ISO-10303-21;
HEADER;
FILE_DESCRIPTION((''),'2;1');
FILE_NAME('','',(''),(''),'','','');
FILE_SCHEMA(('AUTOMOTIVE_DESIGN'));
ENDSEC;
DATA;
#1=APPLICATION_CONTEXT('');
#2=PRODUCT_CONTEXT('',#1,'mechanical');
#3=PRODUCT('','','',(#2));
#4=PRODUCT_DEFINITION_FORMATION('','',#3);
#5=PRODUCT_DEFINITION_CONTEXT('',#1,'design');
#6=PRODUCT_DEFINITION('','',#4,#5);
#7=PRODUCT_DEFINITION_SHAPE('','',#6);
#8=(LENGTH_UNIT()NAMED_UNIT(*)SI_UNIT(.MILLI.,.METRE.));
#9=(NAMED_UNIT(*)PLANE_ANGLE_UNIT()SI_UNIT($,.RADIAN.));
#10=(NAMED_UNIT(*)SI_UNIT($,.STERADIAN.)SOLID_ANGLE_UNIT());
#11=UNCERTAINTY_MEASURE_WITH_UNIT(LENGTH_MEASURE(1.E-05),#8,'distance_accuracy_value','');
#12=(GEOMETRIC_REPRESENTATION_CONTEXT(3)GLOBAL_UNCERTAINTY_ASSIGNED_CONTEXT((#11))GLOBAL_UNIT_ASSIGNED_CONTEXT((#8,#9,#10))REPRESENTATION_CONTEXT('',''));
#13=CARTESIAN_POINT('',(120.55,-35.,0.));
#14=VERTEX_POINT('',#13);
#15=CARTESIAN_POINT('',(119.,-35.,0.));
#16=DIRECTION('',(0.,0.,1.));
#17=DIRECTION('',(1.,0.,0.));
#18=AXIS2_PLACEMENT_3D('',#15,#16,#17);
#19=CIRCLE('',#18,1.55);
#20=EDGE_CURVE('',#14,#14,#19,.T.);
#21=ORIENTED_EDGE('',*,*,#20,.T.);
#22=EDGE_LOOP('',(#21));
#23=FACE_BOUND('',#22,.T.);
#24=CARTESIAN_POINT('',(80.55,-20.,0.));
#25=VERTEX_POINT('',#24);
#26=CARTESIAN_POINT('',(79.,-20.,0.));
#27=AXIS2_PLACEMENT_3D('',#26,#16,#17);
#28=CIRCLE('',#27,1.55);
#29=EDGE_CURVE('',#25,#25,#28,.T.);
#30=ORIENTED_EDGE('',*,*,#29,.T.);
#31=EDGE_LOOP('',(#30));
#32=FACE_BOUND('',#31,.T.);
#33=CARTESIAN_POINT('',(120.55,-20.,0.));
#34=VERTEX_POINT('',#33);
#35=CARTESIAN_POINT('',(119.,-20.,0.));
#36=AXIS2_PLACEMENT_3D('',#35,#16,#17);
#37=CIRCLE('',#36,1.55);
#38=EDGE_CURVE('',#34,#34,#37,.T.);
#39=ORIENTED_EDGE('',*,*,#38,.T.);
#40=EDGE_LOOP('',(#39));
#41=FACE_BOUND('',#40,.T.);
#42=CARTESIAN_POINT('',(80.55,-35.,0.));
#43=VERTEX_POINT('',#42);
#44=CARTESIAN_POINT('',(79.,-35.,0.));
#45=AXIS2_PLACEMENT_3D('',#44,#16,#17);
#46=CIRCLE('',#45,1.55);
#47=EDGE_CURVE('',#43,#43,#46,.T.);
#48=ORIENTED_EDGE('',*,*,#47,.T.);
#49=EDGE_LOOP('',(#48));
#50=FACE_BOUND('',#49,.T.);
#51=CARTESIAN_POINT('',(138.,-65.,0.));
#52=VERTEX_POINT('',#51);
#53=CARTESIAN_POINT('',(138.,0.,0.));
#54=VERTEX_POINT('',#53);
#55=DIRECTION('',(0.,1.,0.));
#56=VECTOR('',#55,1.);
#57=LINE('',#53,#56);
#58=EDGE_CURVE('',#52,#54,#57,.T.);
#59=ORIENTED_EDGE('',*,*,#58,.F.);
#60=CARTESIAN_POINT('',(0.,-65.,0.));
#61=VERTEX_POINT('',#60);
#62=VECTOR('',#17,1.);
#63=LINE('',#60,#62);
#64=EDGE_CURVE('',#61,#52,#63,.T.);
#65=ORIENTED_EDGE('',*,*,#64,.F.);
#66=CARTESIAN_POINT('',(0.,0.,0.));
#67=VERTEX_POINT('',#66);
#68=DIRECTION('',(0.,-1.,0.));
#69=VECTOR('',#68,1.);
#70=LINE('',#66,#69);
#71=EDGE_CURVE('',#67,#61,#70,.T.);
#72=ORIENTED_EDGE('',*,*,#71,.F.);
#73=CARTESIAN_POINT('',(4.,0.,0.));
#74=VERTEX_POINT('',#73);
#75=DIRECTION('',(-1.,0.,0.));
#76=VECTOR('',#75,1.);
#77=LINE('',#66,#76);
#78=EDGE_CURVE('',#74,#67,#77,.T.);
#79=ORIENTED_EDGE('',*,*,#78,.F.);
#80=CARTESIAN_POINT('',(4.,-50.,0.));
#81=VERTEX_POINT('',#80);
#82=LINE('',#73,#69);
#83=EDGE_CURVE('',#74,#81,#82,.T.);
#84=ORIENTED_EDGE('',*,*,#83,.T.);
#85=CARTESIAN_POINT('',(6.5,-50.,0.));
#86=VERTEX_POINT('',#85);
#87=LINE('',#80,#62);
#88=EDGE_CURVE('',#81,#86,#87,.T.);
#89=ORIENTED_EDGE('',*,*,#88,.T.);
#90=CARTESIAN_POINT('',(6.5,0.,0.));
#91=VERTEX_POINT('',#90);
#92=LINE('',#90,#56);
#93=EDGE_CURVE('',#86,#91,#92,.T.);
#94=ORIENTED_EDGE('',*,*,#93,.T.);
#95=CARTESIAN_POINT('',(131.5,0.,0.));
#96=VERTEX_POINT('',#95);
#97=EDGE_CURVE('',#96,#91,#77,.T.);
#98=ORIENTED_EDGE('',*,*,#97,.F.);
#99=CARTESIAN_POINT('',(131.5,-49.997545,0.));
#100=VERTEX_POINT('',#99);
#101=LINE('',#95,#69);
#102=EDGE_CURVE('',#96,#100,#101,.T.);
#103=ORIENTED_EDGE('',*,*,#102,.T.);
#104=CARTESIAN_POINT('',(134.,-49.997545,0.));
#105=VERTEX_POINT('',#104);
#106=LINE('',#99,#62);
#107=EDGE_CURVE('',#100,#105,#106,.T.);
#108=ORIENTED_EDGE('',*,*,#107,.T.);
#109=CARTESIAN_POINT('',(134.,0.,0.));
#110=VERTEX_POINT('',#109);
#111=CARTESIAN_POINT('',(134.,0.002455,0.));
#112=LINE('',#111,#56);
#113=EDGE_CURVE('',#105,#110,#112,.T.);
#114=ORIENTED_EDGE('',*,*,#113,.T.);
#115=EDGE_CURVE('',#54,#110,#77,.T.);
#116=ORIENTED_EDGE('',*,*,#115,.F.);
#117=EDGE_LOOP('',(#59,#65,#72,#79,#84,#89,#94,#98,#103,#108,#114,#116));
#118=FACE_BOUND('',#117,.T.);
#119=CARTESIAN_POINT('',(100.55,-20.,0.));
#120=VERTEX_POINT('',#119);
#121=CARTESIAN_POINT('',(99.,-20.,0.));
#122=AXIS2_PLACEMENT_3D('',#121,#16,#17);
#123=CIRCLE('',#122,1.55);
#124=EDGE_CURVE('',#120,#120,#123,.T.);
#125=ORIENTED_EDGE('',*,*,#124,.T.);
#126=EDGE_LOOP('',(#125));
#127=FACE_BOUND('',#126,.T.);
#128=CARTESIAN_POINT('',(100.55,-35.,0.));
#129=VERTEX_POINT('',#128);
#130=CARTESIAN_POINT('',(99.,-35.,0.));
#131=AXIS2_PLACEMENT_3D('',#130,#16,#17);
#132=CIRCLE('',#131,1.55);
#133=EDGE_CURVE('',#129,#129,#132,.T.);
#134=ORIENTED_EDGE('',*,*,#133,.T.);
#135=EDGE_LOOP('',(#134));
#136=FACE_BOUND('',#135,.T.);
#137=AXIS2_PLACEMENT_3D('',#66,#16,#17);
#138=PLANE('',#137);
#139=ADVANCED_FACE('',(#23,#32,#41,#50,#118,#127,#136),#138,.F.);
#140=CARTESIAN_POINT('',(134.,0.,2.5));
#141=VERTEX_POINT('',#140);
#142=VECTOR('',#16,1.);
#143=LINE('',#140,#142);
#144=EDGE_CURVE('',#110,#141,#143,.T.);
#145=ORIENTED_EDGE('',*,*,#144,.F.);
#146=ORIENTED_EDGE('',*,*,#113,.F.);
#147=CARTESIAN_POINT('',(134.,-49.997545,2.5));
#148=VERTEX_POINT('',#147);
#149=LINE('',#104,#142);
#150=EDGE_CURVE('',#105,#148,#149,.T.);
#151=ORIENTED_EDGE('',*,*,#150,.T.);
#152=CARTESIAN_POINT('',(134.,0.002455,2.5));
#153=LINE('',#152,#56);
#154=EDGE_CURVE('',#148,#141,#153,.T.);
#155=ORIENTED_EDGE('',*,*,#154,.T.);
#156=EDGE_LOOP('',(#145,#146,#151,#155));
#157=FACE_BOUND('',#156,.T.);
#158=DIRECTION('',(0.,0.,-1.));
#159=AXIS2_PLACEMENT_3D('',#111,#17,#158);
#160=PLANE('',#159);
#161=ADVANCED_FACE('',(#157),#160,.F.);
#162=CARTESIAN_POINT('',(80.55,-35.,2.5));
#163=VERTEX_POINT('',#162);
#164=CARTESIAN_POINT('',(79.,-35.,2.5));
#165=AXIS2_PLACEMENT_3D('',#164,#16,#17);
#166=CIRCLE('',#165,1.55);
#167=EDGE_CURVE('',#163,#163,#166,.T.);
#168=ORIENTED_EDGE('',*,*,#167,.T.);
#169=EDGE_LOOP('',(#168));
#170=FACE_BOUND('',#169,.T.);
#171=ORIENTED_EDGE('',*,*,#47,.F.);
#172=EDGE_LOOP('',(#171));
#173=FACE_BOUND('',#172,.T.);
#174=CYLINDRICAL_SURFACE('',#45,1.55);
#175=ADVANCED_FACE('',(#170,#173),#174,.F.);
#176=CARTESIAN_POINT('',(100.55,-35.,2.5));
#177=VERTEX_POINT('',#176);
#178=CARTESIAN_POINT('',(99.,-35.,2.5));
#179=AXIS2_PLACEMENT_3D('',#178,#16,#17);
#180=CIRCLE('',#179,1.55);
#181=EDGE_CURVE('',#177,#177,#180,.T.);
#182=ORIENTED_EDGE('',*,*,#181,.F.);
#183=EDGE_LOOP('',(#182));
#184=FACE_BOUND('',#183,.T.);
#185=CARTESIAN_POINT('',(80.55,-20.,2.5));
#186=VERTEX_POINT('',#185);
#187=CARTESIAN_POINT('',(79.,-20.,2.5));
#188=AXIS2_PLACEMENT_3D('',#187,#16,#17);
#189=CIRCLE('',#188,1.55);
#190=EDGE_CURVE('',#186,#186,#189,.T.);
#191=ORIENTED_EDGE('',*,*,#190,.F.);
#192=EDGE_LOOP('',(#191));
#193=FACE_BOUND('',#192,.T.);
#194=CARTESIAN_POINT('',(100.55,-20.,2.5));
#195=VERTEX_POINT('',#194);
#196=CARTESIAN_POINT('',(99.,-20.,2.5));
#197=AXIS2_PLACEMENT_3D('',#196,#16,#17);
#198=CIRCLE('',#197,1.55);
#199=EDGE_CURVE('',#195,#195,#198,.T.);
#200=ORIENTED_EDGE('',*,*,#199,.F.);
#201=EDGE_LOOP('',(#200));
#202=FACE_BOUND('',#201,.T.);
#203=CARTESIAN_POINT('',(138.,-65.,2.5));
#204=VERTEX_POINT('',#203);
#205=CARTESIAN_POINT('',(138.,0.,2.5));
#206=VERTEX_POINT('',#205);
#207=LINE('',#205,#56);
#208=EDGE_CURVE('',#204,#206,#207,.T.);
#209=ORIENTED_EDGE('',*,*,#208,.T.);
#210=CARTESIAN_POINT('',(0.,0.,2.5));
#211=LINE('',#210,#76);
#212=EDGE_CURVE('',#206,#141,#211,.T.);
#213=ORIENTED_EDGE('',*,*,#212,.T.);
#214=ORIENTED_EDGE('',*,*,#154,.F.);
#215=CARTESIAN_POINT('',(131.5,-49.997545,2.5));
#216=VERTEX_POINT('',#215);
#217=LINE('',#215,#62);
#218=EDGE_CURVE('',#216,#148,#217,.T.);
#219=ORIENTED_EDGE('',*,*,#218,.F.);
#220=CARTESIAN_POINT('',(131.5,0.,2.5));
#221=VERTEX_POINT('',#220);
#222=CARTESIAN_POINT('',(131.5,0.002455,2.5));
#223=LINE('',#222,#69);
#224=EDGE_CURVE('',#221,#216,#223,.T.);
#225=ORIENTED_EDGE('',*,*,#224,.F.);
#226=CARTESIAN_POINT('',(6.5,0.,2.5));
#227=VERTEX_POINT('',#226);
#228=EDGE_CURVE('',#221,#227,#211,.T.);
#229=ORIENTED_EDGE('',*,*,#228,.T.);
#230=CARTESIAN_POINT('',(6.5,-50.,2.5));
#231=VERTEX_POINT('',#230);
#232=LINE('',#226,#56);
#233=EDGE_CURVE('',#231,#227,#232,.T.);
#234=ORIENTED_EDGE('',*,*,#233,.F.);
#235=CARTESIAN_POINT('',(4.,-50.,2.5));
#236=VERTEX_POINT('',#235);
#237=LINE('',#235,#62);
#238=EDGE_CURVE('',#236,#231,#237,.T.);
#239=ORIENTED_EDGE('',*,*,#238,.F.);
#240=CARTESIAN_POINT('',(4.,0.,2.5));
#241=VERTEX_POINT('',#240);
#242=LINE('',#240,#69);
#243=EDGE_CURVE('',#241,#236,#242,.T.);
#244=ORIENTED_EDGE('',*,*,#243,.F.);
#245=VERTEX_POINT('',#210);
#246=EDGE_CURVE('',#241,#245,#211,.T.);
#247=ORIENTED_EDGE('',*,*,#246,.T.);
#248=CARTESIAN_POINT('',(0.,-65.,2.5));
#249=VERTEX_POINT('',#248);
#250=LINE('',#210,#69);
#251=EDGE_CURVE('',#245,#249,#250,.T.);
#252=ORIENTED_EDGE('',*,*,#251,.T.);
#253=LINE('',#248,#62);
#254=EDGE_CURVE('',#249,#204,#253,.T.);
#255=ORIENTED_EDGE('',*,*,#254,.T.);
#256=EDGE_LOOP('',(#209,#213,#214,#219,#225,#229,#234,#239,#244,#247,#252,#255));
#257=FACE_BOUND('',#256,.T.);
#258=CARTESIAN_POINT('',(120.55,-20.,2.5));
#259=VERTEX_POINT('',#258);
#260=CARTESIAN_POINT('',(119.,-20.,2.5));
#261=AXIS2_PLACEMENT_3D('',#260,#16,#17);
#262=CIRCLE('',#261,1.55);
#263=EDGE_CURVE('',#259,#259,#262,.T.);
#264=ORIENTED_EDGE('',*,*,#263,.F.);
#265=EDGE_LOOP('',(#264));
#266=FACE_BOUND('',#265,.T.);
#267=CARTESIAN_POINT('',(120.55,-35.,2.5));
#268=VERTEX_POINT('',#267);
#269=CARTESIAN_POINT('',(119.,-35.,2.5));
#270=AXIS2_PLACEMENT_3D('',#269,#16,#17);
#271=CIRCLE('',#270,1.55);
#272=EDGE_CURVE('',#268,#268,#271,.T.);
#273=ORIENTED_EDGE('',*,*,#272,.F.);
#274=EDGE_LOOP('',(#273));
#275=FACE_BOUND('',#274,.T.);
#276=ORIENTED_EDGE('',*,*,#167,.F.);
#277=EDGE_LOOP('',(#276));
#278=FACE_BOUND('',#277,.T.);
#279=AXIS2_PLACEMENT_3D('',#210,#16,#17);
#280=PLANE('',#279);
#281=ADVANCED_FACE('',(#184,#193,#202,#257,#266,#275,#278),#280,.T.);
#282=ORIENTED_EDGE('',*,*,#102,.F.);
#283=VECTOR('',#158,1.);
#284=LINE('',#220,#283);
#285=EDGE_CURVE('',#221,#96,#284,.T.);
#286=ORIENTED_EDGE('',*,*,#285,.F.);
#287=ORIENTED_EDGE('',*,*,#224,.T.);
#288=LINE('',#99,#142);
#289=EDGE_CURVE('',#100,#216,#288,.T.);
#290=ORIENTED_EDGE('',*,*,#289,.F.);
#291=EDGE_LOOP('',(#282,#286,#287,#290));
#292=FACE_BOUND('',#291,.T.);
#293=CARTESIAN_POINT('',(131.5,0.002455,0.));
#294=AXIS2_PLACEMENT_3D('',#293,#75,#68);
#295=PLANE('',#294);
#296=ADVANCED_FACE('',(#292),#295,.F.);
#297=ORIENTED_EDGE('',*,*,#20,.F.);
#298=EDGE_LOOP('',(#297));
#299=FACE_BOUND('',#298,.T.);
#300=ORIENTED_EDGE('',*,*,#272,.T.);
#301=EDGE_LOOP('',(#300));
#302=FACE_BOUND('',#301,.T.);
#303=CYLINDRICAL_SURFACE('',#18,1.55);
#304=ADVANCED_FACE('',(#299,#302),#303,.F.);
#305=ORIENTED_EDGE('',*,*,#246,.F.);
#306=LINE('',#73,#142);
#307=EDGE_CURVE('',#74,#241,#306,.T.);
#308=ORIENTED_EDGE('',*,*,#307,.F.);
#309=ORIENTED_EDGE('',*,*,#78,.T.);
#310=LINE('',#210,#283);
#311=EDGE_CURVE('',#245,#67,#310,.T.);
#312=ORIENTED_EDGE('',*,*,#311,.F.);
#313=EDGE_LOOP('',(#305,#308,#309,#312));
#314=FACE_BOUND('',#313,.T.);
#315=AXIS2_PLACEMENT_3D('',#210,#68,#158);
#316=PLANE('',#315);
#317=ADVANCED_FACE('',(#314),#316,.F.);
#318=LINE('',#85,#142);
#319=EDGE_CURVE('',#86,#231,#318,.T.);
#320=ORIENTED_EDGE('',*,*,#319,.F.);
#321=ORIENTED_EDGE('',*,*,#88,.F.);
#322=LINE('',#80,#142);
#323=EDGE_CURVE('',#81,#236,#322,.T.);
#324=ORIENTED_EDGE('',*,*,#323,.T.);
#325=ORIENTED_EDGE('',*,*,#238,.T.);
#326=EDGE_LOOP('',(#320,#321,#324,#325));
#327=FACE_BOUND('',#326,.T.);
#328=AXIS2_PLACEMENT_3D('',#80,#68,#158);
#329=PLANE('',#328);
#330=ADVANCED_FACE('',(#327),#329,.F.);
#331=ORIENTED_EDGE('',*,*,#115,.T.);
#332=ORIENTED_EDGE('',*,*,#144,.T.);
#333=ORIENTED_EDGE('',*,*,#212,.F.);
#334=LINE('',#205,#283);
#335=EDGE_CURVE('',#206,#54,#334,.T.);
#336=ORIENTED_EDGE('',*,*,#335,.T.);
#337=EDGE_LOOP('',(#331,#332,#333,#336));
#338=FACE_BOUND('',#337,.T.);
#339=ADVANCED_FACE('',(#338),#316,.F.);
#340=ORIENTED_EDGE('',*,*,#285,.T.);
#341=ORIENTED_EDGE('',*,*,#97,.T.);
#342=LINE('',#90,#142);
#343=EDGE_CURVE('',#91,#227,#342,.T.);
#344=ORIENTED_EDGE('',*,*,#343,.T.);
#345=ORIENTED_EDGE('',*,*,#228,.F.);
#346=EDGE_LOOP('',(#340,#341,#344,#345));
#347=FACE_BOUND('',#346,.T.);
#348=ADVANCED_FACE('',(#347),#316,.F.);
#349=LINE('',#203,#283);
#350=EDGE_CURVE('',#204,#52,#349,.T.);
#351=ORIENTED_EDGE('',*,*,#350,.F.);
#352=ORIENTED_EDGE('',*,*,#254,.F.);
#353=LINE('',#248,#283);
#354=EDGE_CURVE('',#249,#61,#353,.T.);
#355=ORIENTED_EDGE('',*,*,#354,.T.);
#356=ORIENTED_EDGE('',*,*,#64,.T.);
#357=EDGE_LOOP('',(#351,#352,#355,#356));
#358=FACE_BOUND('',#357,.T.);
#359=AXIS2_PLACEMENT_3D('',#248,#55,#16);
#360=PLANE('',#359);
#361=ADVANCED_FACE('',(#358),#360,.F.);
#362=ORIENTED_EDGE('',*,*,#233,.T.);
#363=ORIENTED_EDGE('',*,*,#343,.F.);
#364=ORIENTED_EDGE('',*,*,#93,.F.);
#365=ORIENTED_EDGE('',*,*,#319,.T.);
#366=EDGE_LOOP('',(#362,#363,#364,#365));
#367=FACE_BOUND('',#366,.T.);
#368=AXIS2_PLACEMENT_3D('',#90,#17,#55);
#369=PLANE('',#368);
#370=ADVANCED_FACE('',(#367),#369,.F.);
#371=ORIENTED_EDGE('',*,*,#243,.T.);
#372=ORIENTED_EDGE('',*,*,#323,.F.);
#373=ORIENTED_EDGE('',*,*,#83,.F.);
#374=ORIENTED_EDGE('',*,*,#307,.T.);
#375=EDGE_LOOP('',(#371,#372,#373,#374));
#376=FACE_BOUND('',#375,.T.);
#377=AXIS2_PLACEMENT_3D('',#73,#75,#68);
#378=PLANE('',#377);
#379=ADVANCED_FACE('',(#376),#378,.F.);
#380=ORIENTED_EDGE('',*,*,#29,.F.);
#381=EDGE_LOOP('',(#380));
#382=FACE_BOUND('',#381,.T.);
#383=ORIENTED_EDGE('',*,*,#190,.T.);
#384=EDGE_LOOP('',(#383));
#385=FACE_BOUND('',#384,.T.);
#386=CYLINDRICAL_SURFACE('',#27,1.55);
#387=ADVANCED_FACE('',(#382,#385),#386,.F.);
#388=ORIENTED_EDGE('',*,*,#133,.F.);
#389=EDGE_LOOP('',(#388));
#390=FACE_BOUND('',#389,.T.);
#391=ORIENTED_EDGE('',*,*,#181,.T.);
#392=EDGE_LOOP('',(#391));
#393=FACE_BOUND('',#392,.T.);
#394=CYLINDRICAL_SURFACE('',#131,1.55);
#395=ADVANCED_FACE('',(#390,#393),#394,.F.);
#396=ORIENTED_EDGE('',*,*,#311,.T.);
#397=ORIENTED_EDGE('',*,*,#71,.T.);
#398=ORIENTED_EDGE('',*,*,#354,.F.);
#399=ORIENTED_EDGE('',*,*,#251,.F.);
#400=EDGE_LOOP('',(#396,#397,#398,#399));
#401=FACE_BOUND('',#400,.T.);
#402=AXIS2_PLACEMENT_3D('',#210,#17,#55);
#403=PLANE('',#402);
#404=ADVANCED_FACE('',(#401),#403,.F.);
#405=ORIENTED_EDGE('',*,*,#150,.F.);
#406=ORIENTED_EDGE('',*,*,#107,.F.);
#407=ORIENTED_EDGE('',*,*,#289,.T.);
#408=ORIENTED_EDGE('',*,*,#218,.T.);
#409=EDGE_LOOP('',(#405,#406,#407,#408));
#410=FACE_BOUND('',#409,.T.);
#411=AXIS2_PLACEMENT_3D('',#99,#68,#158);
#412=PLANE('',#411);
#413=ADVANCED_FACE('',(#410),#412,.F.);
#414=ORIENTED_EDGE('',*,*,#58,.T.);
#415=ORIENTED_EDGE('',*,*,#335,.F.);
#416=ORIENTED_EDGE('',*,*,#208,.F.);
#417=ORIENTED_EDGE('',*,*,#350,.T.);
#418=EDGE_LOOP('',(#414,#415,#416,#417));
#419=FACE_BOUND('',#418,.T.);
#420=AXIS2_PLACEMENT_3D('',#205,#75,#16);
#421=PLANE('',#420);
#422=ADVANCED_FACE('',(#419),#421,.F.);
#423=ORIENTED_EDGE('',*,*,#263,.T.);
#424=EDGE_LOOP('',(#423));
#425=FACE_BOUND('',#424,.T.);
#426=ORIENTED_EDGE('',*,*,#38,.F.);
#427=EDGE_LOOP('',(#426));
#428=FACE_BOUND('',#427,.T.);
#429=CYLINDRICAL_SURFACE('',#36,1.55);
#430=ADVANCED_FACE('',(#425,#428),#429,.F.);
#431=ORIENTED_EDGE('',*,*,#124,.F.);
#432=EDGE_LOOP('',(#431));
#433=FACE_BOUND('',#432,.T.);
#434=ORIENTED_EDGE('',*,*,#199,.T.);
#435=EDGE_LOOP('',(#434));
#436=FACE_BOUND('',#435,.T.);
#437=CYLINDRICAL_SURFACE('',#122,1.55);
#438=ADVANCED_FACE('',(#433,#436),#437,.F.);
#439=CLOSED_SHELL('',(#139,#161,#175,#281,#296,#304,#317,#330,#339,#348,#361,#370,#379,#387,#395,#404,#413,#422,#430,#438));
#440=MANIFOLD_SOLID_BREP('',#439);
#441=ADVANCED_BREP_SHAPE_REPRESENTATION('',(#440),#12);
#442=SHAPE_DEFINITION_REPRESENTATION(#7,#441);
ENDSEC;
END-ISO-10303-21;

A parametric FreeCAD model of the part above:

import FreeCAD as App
import Part
import Sketcher
from FreeCAD import Vector
Q = App.Units.Quantity

doc = App.newDocument("Part")
params = doc.addObject("Spreadsheet::Sheet", "Params")
for row, (alias, value) in enumerate([
    ("sketch1_width", "138 mm"),
    ("sketch1_height", "65 mm"),
    ("pad1_length", "2.5 mm"),
    ("sketch2_height", "50 mm"),
    ("sketch2_width", "2.5 mm"),
    ("pocket1_length", "2.5 mm"),
    ("sketch3_diameter", "3.1 mm"),
], start=1):
    params.set(f"A{row}", alias)
    params.set(f"B{row}", "=" + value)
    params.setAlias(f"B{row}", alias)

body = doc.addObject("PartDesign::Body", "Body")

sketch1 = body.newObject("Sketcher::SketchObject", "Sketch")
sketch1.AttachmentSupport = (doc.getObject("XY_Plane"), [""])
sketch1.MapMode = "FlatFace"
sketch1.addGeometry([
    Part.LineSegment(Vector(0, 0, 0), Vector(0, -65, 0)),
    Part.LineSegment(Vector(0, -65, 0), Vector(138, -65, 0)),
    Part.LineSegment(Vector(138, -65, 0), Vector(138, 0, 0)),
    Part.LineSegment(Vector(138, 0, 0), Vector(0, 0, 0)),
], False)
sketch1.addConstraint([
    Sketcher.Constraint("Coincident", 0, 2, 1, 1),
    Sketcher.Constraint("Coincident", 1, 2, 2, 1),
    Sketcher.Constraint("Coincident", 2, 2, 3, 1),
    Sketcher.Constraint("Coincident", 3, 2, 0, 1),
    Sketcher.Constraint("Vertical", 0),
    Sketcher.Constraint("Horizontal", 1),
    Sketcher.Constraint("Vertical", 2),
    Sketcher.Constraint("Horizontal", 3),
    Sketcher.Constraint("Coincident", 3, 2, -1, 1),
    Sketcher.Constraint("DistanceX", 1, 1, 1, 2, Q("138 mm")),
    Sketcher.Constraint("DistanceY", 0, 2, 0, 1, Q("65 mm")),
])
sketch1.setExpression("Constraints[9]", "Params.sketch1_width")
sketch1.setExpression("Constraints[10]", "Params.sketch1_height")
pad1 = body.newObject("PartDesign::Pad", "Pad")
pad1.Profile = sketch1
pad1.setExpression("Length", "Params.pad1_length")

sketch2 = body.newObject("Sketcher::SketchObject", "Sketch001")
sketch2.AttachmentSupport = (doc.getObject("XY_Plane"), [""])
sketch2.MapMode = "FlatFace"
sketch2.AttachmentOffset = App.Placement(Vector(0, 0, 2.5), App.Rotation())
sketch2.addGeometry([
    Part.LineSegment(Vector(4, 0, 0), Vector(4, -50, 0)),
    Part.LineSegment(Vector(4, -50, 0), Vector(6.5, -50, 0)),
    Part.LineSegment(Vector(6.5, -50, 0), Vector(6.5, 0, 0)),
    Part.LineSegment(Vector(6.5, 0, 0), Vector(4, 0, 0)),
    Part.LineSegment(Vector(131.5, 0, 0), Vector(131.5, -50, 0)),
    Part.LineSegment(Vector(131.5, -50, 0), Vector(134, -50, 0)),
    Part.LineSegment(Vector(134, -50, 0), Vector(134, 0, 0)),
    Part.LineSegment(Vector(134, 0, 0), Vector(131.5, 0, 0)),
], False)
sketch2.addConstraint([
    Sketcher.Constraint("Coincident", 0, 2, 1, 1),
    Sketcher.Constraint("Coincident", 1, 2, 2, 1),
    Sketcher.Constraint("Coincident", 2, 2, 3, 1),
    Sketcher.Constraint("Coincident", 3, 2, 0, 1),
    Sketcher.Constraint("Coincident", 4, 2, 5, 1),
    Sketcher.Constraint("Coincident", 5, 2, 6, 1),
    Sketcher.Constraint("Coincident", 6, 2, 7, 1),
    Sketcher.Constraint("Coincident", 7, 2, 4, 1),
    Sketcher.Constraint("Vertical", 0),
    Sketcher.Constraint("Horizontal", 1),
    Sketcher.Constraint("Vertical", 2),
    Sketcher.Constraint("Horizontal", 3),
    Sketcher.Constraint("Vertical", 4),
    Sketcher.Constraint("Horizontal", 5),
    Sketcher.Constraint("Vertical", 6),
    Sketcher.Constraint("Horizontal", 7),
    Sketcher.Constraint("PointOnObject", 2, 2, -1),
    Sketcher.Constraint("Equal", 3, 5),
    Sketcher.Constraint("Equal", 2, 4),
    Sketcher.Constraint("DistanceY", 0, 2, 0, 1, Q("50 mm")),
    Sketcher.Constraint("DistanceX", 1, 1, 1, 2, Q("2.5 mm")),
    Sketcher.Constraint("DistanceX", -1, 1, 0, 2, Q("4 mm")),
    Sketcher.Constraint("DistanceX", -1, 1, 5, 2, Q("134 mm")),
    Sketcher.Constraint("DistanceY", 4, 2, -1, 1, Q("49.997545 mm")),
])
sketch2.setExpression("Constraints[19]", "Params.sketch2_height")
sketch2.setExpression("Constraints[20]", "Params.sketch2_width")
pocket1 = body.newObject("PartDesign::Pocket", "Pocket")
pocket1.Profile = sketch2
pocket1.setExpression("Length", "Params.pocket1_length")

sketch3 = body.newObject("Sketcher::SketchObject", "Sketch002")
sketch3.AttachmentSupport = (doc.getObject("XY_Plane"), [""])
sketch3.MapMode = "FlatFace"
sketch3.AttachmentOffset = App.Placement(Vector(0, 0, 2.5), App.Rotation())
sketch3.addGeometry([
    Part.Circle(Vector(119, -35, 0), Vector(0, 0, 1), 1.6),
    Part.Circle(Vector(119, -20, 0), Vector(0, 0, 1), 1.6),
    Part.Circle(Vector(99, -35, 0), Vector(0, 0, 1), 1.6),
    Part.Circle(Vector(99, -20, 0), Vector(0, 0, 1), 1.6),
    Part.Circle(Vector(79, -35, 0), Vector(0, 0, 1), 1.6),
    Part.Circle(Vector(79, -20, 0), Vector(0, 0, 1), 1.6),
], False)
sketch3.addConstraint([
    Sketcher.Constraint("Equal", 0, 1),
    Sketcher.Constraint("Equal", 1, 2),
    Sketcher.Constraint("Equal", 2, 3),
    Sketcher.Constraint("Equal", 3, 4),
    Sketcher.Constraint("Equal", 4, 5),
    Sketcher.Constraint("Horizontal", 0, 3, 2, 3),
    Sketcher.Constraint("Horizontal", 1, 3, 3, 3),
    Sketcher.Constraint("Horizontal", 2, 3, 4, 3),
    Sketcher.Constraint("Horizontal", 3, 3, 5, 3),
    Sketcher.Constraint("Vertical", 0, 3, 1, 3),
    Sketcher.Constraint("Vertical", 2, 3, 3, 3),
    Sketcher.Constraint("Vertical", 4, 3, 5, 3),
    Sketcher.Constraint("Diameter", 0, Q("3.1 mm")),
    Sketcher.Constraint("DistanceX", -1, 1, 0, 3, Q("119 mm")),
    Sketcher.Constraint("DistanceY", 0, 3, -1, 1, Q("35 mm")),
    Sketcher.Constraint("DistanceY", 1, 3, -1, 1, Q("20 mm")),
    Sketcher.Constraint("DistanceX", -1, 1, 2, 3, Q("99 mm")),
    Sketcher.Constraint("DistanceX", -1, 1, 4, 3, Q("79 mm")),
])
sketch3.setExpression("Constraints[12]", "Params.sketch3_diameter")
pocket2 = body.newObject("PartDesign::Pocket", "Pocket001")
pocket2.Profile = sketch3
pocket2.Type = "ThroughAll"

doc.recompute()
